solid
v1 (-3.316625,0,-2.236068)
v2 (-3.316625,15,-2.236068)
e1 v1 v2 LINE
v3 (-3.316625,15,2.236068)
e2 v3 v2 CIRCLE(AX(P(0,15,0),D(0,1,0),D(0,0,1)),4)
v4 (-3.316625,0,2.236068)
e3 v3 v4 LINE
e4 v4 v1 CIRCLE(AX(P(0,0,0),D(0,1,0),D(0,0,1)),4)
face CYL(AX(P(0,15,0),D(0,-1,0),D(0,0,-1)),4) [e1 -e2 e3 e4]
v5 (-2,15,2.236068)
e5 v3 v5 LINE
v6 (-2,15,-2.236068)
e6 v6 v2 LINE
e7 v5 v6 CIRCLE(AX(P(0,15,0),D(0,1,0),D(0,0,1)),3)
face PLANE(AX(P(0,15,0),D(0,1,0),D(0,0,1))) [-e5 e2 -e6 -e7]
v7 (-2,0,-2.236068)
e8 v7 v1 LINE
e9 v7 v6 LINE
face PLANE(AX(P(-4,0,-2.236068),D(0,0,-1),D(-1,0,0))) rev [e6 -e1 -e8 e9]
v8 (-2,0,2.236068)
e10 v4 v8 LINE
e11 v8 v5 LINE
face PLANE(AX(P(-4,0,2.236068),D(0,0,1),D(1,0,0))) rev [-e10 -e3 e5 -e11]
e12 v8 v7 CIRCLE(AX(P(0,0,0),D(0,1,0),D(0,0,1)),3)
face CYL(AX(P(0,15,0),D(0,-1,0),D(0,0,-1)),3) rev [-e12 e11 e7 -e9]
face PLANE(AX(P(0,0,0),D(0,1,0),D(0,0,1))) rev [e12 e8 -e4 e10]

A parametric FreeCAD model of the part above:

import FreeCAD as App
import Part
import Sketcher
from FreeCAD import Vector

doc = App.newDocument("Part")
body = doc.addObject("PartDesign::Body", "Body")

# Sketch on XZ plane
sketch1 = body.newObject("Sketcher::SketchObject", "Sketch")
sketch1.AttachmentSupport = (doc.getObject("XZ_Plane"), [""])
sketch1.MapMode = "FlatFace"
sketch1.addGeometry(Part.Circle(Vector(0, 0, 0), Vector(0, 0, 1), 4), False)
sketch1.addGeometry(Part.Circle(Vector(0, 0, 0), Vector(0, 0, 1), 3), False)
sketch1.addConstraint(Sketcher.Constraint("Coincident", 0, 3, -1, 1))
sketch1.addConstraint(Sketcher.Constraint("Coincident", 1, 3, -1, 1))
sketch1.addConstraint(Sketcher.Constraint("Diameter", 0, 8.0))
sketch1.addConstraint(Sketcher.Constraint("Diameter", 1, 6.0))
pad1 = body.newObject("PartDesign::Pad", "Pad")
pad1.Profile = sketch1
pad1.Length = 15
pad1.Reversed = True

# Sketch on XZ plane
sketch2 = body.newObject("Sketcher::SketchObject", "Sketch001")
sketch2.AttachmentSupport = (doc.getObject("XZ_Plane"), [""])
sketch2.MapMode = "FlatFace"
sketch2.AttachmentOffset = App.Placement(Vector(0, 0, -15), App.Rotation())
sketch2.addGeometry(Part.LineSegment(Vector(-4, -2.2, 0), Vector(-4, 2.2, 0)), False)
sketch2.addGeometry(Part.LineSegment(Vector(-4, 2.2, 0), Vector(-2, 2.2, 0)), False)
sketch2.addGeometry(Part.LineSegment(Vector(-2, 2.2, 0), Vector(-2, -2.2, 0)), False)
sketch2.addGeometry(Part.LineSegment(Vector(-2, -2.2, 0), Vector(-4, -2.2, 0)), False)
sketch2.addConstraint(Sketcher.Constraint("Coincident", 0, 2, 1, 1))
sketch2.addConstraint(Sketcher.Constraint("Coincident", 1, 2, 2, 1))
sketch2.addConstraint(Sketcher.Constraint("Coincident", 2, 2, 3, 1))
sketch2.addConstraint(Sketcher.Constraint("Coincident", 3, 2, 0, 1))
sketch2.addConstraint(Sketcher.Constraint("Vertical", 0))
sketch2.addConstraint(Sketcher.Constraint("Horizontal", 1))
sketch2.addConstraint(Sketcher.Constraint("Vertical", 2))
sketch2.addConstraint(Sketcher.Constraint("Horizontal", 3))
sketch2.addConstraint(Sketcher.Constraint("DistanceX", 1, 1, 1, 2, 2.0))
sketch2.addConstraint(Sketcher.Constraint("DistanceX", 0, 2, -1, 1, 4.0))
sketch2.addConstraint(Sketcher.Constraint("DistanceY", 0, 1, 0, 2, 4.472136))
sketch2.addConstraint(Sketcher.Constraint("DistanceY", -1, 1, 0, 2, 2.236068))
pocket1 = body.newObject("PartDesign::Pocket", "Pocket")
pocket1.Profile = sketch2
pocket1.Length = 15
pocket1.Reversed = True

doc.recompute()
